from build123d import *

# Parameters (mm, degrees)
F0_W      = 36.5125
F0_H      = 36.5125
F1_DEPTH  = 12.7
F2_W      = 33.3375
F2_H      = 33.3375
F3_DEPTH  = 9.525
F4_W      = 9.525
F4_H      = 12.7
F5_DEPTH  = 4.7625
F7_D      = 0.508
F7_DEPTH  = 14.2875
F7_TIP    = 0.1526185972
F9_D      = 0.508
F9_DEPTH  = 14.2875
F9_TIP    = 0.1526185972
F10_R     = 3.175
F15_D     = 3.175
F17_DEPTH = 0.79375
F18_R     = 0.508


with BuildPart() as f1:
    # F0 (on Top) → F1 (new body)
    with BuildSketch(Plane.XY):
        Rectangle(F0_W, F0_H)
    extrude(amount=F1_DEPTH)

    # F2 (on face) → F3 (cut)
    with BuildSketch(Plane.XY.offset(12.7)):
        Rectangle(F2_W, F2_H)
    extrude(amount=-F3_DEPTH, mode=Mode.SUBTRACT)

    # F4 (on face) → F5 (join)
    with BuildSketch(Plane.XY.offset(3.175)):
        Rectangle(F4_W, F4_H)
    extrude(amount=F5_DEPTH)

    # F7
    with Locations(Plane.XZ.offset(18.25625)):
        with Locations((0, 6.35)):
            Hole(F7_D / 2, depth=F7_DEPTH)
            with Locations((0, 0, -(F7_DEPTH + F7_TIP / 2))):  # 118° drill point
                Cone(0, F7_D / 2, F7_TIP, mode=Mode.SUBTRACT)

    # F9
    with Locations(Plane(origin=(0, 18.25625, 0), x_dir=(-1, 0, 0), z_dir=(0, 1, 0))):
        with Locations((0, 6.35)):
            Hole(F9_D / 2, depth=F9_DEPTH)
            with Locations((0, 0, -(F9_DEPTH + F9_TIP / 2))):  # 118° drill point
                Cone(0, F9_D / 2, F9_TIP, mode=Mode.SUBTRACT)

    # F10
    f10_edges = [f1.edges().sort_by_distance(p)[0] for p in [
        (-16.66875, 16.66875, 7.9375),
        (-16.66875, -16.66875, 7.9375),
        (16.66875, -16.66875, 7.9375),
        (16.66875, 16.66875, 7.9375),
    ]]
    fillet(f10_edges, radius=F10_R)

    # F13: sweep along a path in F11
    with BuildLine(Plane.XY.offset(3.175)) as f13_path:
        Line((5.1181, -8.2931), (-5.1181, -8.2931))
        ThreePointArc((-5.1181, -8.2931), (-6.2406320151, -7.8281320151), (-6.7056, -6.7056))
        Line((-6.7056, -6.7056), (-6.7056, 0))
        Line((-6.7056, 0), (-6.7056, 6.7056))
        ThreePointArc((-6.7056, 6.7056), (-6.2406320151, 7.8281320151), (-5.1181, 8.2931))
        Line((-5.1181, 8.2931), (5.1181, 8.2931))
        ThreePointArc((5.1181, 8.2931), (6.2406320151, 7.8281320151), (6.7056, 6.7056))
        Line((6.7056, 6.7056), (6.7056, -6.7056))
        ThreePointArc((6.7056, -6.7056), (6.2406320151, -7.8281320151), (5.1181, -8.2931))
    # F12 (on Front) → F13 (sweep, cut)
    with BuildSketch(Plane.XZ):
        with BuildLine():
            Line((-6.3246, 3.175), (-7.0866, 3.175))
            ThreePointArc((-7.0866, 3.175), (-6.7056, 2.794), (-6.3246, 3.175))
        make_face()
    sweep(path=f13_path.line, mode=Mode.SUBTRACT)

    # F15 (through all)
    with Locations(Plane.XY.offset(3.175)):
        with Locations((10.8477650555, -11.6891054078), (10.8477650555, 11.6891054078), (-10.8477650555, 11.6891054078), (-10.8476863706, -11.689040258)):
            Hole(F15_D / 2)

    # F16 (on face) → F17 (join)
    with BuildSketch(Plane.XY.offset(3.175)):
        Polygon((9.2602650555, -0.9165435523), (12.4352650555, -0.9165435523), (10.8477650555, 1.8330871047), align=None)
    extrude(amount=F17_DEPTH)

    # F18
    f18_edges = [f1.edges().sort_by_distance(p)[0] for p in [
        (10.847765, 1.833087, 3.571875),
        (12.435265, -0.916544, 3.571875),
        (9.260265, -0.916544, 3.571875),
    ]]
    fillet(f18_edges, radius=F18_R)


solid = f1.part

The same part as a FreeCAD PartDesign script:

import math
import FreeCAD as App
import Part
import Sketcher
Q = App.Units.Quantity


def edges_at(feature, points):
    """Names of the edges that pass closest to the given points."""
    edges = feature.Shape.Edges
    near = lambda p: min(range(len(edges)), key=lambda i: edges[i].distToShape(Part.Vertex(*p))[0])
    return sorted({f"Edge{near(p) + 1}" for p in points})


def add_polygon(sketch, points):
    """Adds a closed chain of lines whose ends are joined by coincident constraints."""
    first, n = sketch.GeometryCount, len(points)
    for a, b in zip(points, points[1:] + points[:1]):
        sketch.addGeometry(Part.LineSegment(App.Vector(*a, 0), App.Vector(*b, 0)), False)
    for i in range(n):
        sketch.addConstraint(Sketcher.Constraint("Coincident", first + i, 2, first + (i + 1) % n, 1))

doc = App.newDocument("Part")
body = doc.addObject("PartDesign::Body", "Body")

# Sketch on XY plane
sketch1 = doc.addObject("Sketcher::SketchObject", "Sketch")
body.addObject(sketch1)
sketch1.AttachmentSupport = (doc.XY_Plane, [""])
sketch1.MapMode = "FlatFace"
add_polygon(sketch1, [(-18, 18), (-18, -18), (18, -18), (18, 18)])  # lines 0-3
sketch1.addConstraint(Sketcher.Constraint("Vertical", 0))
sketch1.addConstraint(Sketcher.Constraint("Horizontal", 1))
sketch1.addConstraint(Sketcher.Constraint("Vertical", 2))
sketch1.addConstraint(Sketcher.Constraint("Horizontal", 3))
sketch1.addConstraint(Sketcher.Constraint("Symmetric", 0, 2, 2, 2, -1, 1))
sketch1.addConstraint(Sketcher.Constraint("Equal", 3, 0))
sketch1.addConstraint(Sketcher.Constraint("DistanceX", 1, 1, 1, 2, Q("1.4375 in")))
pad1 = doc.addObject("PartDesign::Pad", "Pad")
body.addObject(pad1)
pad1.Profile = sketch1
pad1.Length = Q("0.5 in")

# Sketch on XY plane
sketch2 = doc.addObject("Sketcher::SketchObject", "Sketch001")
body.addObject(sketch2)
sketch2.AttachmentSupport = (doc.XY_Plane, [""])
sketch2.MapMode = "FlatFace"
sketch2.AttachmentOffset = App.Placement(App.Vector(0, 0, 0.5 * 25.4), App.Rotation())
add_polygon(sketch2, [(-17, 17), (-17, -17), (17, -17), (17, 17)])  # lines 0-3
sketch2.addConstraint(Sketcher.Constraint("Vertical", 0))
sketch2.addConstraint(Sketcher.Constraint("Horizontal", 1))
sketch2.addConstraint(Sketcher.Constraint("Vertical", 2))
sketch2.addConstraint(Sketcher.Constraint("Horizontal", 3))
sketch2.addConstraint(Sketcher.Constraint("Symmetric", 0, 2, 2, 2, -1, 1))
sketch2.addConstraint(Sketcher.Constraint("Equal", 3, 0))
sketch2.addConstraint(Sketcher.Constraint("DistanceX", 1, 1, 1, 2, Q("1.3125 in")))
pocket1 = doc.addObject("PartDesign::Pocket", "Pocket")
body.addObject(pocket1)
pocket1.Profile = sketch2
pocket1.Length = Q("0.375 in")

# Sketch on XY plane
sketch3 = doc.addObject("Sketcher::SketchObject", "Sketch002")
body.addObject(sketch3)
sketch3.AttachmentSupport = (doc.XY_Plane, [""])
sketch3.MapMode = "FlatFace"
sketch3.AttachmentOffset = App.Placement(App.Vector(0, 0, 0.125 * 25.4), App.Rotation())
add_polygon(sketch3, [(-5, 6), (-5, -6), (5, -6), (5, 6)])  # lines 0-3
sketch3.addConstraint(Sketcher.Constraint("Vertical", 0))
sketch3.addConstraint(Sketcher.Constraint("Horizontal", 1))
sketch3.addConstraint(Sketcher.Constraint("Vertical", 2))
sketch3.addConstraint(Sketcher.Constraint("Horizontal", 3))
sketch3.addConstraint(Sketcher.Constraint("Symmetric", 0, 2, 2, 2, -1, 1))
sketch3.addConstraint(Sketcher.Constraint("DistanceY", 0, 2, 0, 1, Q("0.5 in")))
sketch3.addConstraint(Sketcher.Constraint("DistanceX", 1, 1, 1, 2, Q("0.375 in")))
pad2 = doc.addObject("PartDesign::Pad", "Pad001")
body.addObject(pad2)
pad2.Profile = sketch3
pad2.Length = Q("0.1875 in")

# Sketch on XZ plane
sketch4 = doc.addObject("Sketcher::SketchObject", "Sketch003")
body.addObject(sketch4)
sketch4.AttachmentSupport = (doc.XZ_Plane, [""])
sketch4.MapMode = "FlatFace"
sketch4.AttachmentOffset = App.Placement(App.Vector(0, 0, 0.71875 * 25.4), App.Rotation())
sketch4.addGeometry(Part.Circle(App.Vector(0, 6.35, 0), App.Vector(0, 0, 1), 0.25), False)
sketch4.addConstraint(Sketcher.Constraint("PointOnObject", 0, 3, -2))
sketch4.addConstraint(Sketcher.Constraint("Diameter", 0, Q("0.02 in")))
sketch4.addConstraint(Sketcher.Constraint("DistanceY", -1, 1, 0, 3, Q("0.25 in")))
doc.recompute()
hole = doc.addObject("PartDesign::Hole", "Hole")
body.addObject(hole)
hole.Profile = sketch4
hole.ThreadType = "None"
hole.Diameter = Q("0.02 in")
hole.DepthType = "Dimension"
hole.Depth = Q("0.5625 in")
hole.DrillPoint = "Angled"
hole.DrillPointAngle = 118

# Sketch on XZ plane
sketch5 = doc.addObject("Sketcher::SketchObject", "Sketch004")
body.addObject(sketch5)
sketch5.AttachmentSupport = (doc.XZ_Plane, [""])
sketch5.MapMode = "FlatFace"
sketch5.AttachmentOffset = App.Placement(App.Vector(0, 0, -0.71875 * 25.4), App.Rotation())
sketch5.addGeometry(Part.Circle(App.Vector(0, 6.35, 0), App.Vector(0, 0, 1), 0.25), False)
sketch5.addConstraint(Sketcher.Constraint("PointOnObject", 0, 3, -2))
sketch5.addConstraint(Sketcher.Constraint("Diameter", 0, Q("0.02 in")))
sketch5.addConstraint(Sketcher.Constraint("DistanceY", -1, 1, 0, 3, Q("0.25 in")))
doc.recompute()
hole2 = doc.addObject("PartDesign::Hole", "Hole001")
body.addObject(hole2)
hole2.Profile = sketch5
hole2.ThreadType = "None"
hole2.Diameter = Q("0.02 in")
hole2.DepthType = "Dimension"
hole2.Depth = Q("0.5625 in")
hole2.DrillPoint = "Angled"
hole2.DrillPointAngle = 118
hole2.Reversed = True
doc.recompute()

fillet = doc.addObject("PartDesign::Fillet", "Fillet")
body.addObject(fillet)
fillet.Base = (hole2, edges_at(hole2, [
    (-16.669, 16.669, 7.938),
    (-16.669, -16.669, 7.938),
    (16.669, -16.669, 7.938),
    (16.669, 16.669, 7.938),
]))
fillet.Radius = Q("0.125 in")

# Sketch on XZ plane
sketch6 = doc.addObject("Sketcher::SketchObject", "Sketch005")
body.addObject(sketch6)
sketch6.AttachmentSupport = (doc.XZ_Plane, [""])
sketch6.MapMode = "FlatFace"
sketch6.addGeometry(Part.LineSegment(App.Vector(-6.32, 3.17, 0), App.Vector(-7.09, 3.17, 0)), False)
sketch6.addGeometry(Part.ArcOfCircle(Part.Circle(App.Vector(-6.71, 3.17, 0), App.Vector(0, 0, 1), 0.38), math.radians(180), math.radians(360)), False)
sketch6.addConstraint(Sketcher.Constraint("Coincident", 0, 1, 1, 2))
sketch6.addConstraint(Sketcher.Constraint("Coincident", 1, 1, 0, 2))
sketch6.addConstraint(Sketcher.Constraint("Horizontal", 0))
sketch6.addConstraint(Sketcher.Constraint("Horizontal", 1, 3, 0, 1))
sketch6.addConstraint(Sketcher.Constraint("Radius", 1, Q("0.015 in")))
sketch6.addConstraint(Sketcher.Constraint("DistanceX", 1, 3, -1, 1, Q("0.264 in")))
sketch6.addConstraint(Sketcher.Constraint("DistanceY", -1, 1, 1, 3, Q("0.125 in")))

# Sketch on XY plane
sketch7 = doc.addObject("Sketcher::SketchObject", "Sketch006")
body.addObject(sketch7)
sketch7.AttachmentSupport = (doc.XY_Plane, [""])
sketch7.MapMode = "FlatFace"
sketch7.AttachmentOffset = App.Placement(App.Vector(0, 0, 0.125 * 25.4), App.Rotation())
sketch7.addGeometry(Part.LineSegment(App.Vector(5.1, -8.3, 0), App.Vector(-5.1, -8.3, 0)), False)
sketch7.addGeometry(Part.ArcOfCircle(Part.Circle(App.Vector(-5.1, -6.7, 0), App.Vector(0, 0, 1), 1.6), math.radians(180), math.radians(270)), False)
sketch7.addGeometry(Part.LineSegment(App.Vector(-6.7, -6.7, 0), App.Vector(-6.7, 6.7, 0)), False)
sketch7.addGeometry(Part.ArcOfCircle(Part.Circle(App.Vector(-5.1, 6.7, 0), App.Vector(0, 0, 1), 1.6), math.radians(90), math.radians(180)), False)
sketch7.addGeometry(Part.LineSegment(App.Vector(-5.1, 8.3, 0), App.Vector(5.1, 8.3, 0)), False)
sketch7.addGeometry(Part.ArcOfCircle(Part.Circle(App.Vector(5.1, 6.7, 0), App.Vector(0, 0, 1), 1.6), math.radians(0), math.radians(90)), False)
sketch7.addGeometry(Part.LineSegment(App.Vector(6.7, 6.7, 0), App.Vector(6.7, -6.7, 0)), False)
sketch7.addGeometry(Part.ArcOfCircle(Part.Circle(App.Vector(5.1, -6.7, 0), App.Vector(0, 0, 1), 1.6), math.radians(-90), math.radians(0)), False)
sketch7.addConstraint(Sketcher.Constraint("Tangent", 0, 2, 1, 2))
sketch7.addConstraint(Sketcher.Constraint("Tangent", 1, 1, 2, 1))
sketch7.addConstraint(Sketcher.Constraint("Tangent", 2, 2, 3, 2))
sketch7.addConstraint(Sketcher.Constraint("Tangent", 3, 1, 4, 1))
sketch7.addConstraint(Sketcher.Constraint("Tangent", 4, 2, 5, 2))
sketch7.addConstraint(Sketcher.Constraint("Tangent", 5, 1, 6, 1))
sketch7.addConstraint(Sketcher.Constraint("Tangent", 6, 2, 7, 2))
sketch7.addConstraint(Sketcher.Constraint("Tangent", 7, 1, 0, 1))
sketch7.addConstraint(Sketcher.Constraint("Horizontal", 0))
sketch7.addConstraint(Sketcher.Constraint("Vertical", 2))
sketch7.addConstraint(Sketcher.Constraint("Horizontal", 4))
sketch7.addConstraint(Sketcher.Constraint("Vertical", 6))
sketch7.addConstraint(Sketcher.Constraint("Equal", 1, 3))
sketch7.addConstraint(Sketcher.Constraint("Equal", 3, 5))
sketch7.addConstraint(Sketcher.Constraint("Equal", 5, 7))
sketch7.addConstraint(Sketcher.Constraint("Symmetric", 1, 3, 5, 3, -1, 1))
sketch7.addConstraint(Sketcher.Constraint("Radius", 1, Q("0.0625 in")))
sketch7.addConstraint(Sketcher.Constraint("DistanceX", 0, 2, 0, 1, Q("0.403 in")))
sketch7.addConstraint(Sketcher.Constraint("DistanceY", 2, 1, 2, 2, Q("0.528 in")))
doc.recompute()

subtractivepipe = doc.addObject("PartDesign::SubtractivePipe", "SubtractivePipe")
body.addObject(subtractivepipe)
subtractivepipe.Profile = sketch6
subtractivepipe.Spine = (sketch7, ["Edge1", "Edge2", "Edge3", "Edge4", "Edge5", "Edge6", "Edge7", "Edge8"])

# Sketch on XY plane
sketch8 = doc.addObject("Sketcher::SketchObject", "Sketch007")
body.addObject(sketch8)
sketch8.AttachmentSupport = (doc.XY_Plane, [""])
sketch8.MapMode = "FlatFace"
sketch8.AttachmentOffset = App.Placement(App.Vector(0, 0, 0.125 * 25.4), App.Rotation())
sketch8.addGeometry(Part.Circle(App.Vector(10.8, -11.7, 0), App.Vector(0, 0, 1), 1.6), False)
sketch8.addGeometry(Part.Circle(App.Vector(10.8, 11.7, 0), App.Vector(0, 0, 1), 1.6), False)
sketch8.addGeometry(Part.Circle(App.Vector(-10.8, 11.7, 0), App.Vector(0, 0, 1), 1.6), False)
sketch8.addGeometry(Part.Circle(App.Vector(-10.8, -11.7, 0), App.Vector(0, 0, 1), 1.6), False)
sketch8.addConstraint(Sketcher.Constraint("Equal", 0, 1))
sketch8.addConstraint(Sketcher.Constraint("Equal", 1, 2))
sketch8.addConstraint(Sketcher.Constraint("Equal", 2, 3))
sketch8.addConstraint(Sketcher.Constraint("Symmetric", 0, 3, 2, 3, -1, 1))
sketch8.addConstraint(Sketcher.Constraint("Symmetric", 1, 3, 2, 3, -2))
sketch8.addConstraint(Sketcher.Constraint("Diameter", 0, Q("0.125 in")))
sketch8.addConstraint(Sketcher.Constraint("DistanceY", 3, 3, -1, 1, 11.68904))
sketch8.addConstraint(Sketcher.Constraint("DistanceY", 0, 3, 1, 3, 23.378211))
sketch8.addConstraint(Sketcher.Constraint("DistanceX", 2, 3, 1, 3, 21.69553))
sketch8.addConstraint(Sketcher.Constraint("DistanceX", 3, 3, 0, 3, 21.695451))
doc.recompute()
hole3 = doc.addObject("PartDesign::Hole", "Hole002")
body.addObject(hole3)
hole3.Profile = sketch8
hole3.ThreadType = "None"
hole3.Diameter = Q("0.125 in")
hole3.DepthType = "ThroughAll"

# Sketch on XY plane
sketch9 = doc.addObject("Sketcher::SketchObject", "Sketch008")
body.addObject(sketch9)
sketch9.AttachmentSupport = (doc.XY_Plane, [""])
sketch9.MapMode = "FlatFace"
sketch9.AttachmentOffset = App.Placement(App.Vector(0, 0, 0.125 * 25.4), App.Rotation())
add_polygon(sketch9, [(9.3, -0.9), (12.4, -0.9), (10.8, 1.8)])  # lines 0-2
sketch9.addConstraint(Sketcher.Constraint("Horizontal", 0))
sketch9.addConstraint(Sketcher.Constraint("Equal", 1, 2))
sketch9.addConstraint(Sketcher.Constraint("Angle", 1, Q("120 deg")))
sketch9.addConstraint(Sketcher.Constraint("DistanceX", 0, 1, 0, 2, Q("0.125 in")))
sketch9.addConstraint(Sketcher.Constraint("DistanceX", -1, 1, 0, 2, 12.435265))
sketch9.addConstraint(Sketcher.Constraint("DistanceY", 0, 2, -1, 1, 0.916544))
pad3 = doc.addObject("PartDesign::Pad", "Pad002")
body.addObject(pad3)
pad3.Profile = sketch9
pad3.Length = Q("0.03125 in")
doc.recompute()

fillet2 = doc.addObject("PartDesign::Fillet", "Fillet001")
body.addObject(fillet2)
fillet2.Base = (pad3, edges_at(pad3, [(10.848, 1.833, 3.572), (12.435, -0.917, 3.572), (9.26, -0.917, 3.572)]))
fillet2.Radius = Q("0.02 in")

doc.recompute()
